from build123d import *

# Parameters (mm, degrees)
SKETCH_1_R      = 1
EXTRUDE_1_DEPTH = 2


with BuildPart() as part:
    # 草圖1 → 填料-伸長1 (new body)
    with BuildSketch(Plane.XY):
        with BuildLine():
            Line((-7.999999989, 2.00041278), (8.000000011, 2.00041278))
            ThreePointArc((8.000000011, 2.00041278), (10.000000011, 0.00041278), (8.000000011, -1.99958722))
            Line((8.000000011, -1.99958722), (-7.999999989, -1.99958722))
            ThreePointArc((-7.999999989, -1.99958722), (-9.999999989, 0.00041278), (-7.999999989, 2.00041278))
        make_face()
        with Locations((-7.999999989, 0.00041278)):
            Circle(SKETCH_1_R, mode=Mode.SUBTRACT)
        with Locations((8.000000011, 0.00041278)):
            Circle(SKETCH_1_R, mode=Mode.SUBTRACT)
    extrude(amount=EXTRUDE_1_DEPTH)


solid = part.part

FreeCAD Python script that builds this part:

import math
import FreeCAD as App
import Part
import Sketcher

doc = App.newDocument("Part")
body = doc.addObject("PartDesign::Body", "Body")

# Sketch on XY plane
sketch1 = doc.addObject("Sketcher::SketchObject", "Sketch")
body.addObject(sketch1)
sketch1.AttachmentSupport = (doc.XY_Plane, [""])
sketch1.MapMode = "FlatFace"
sketch1.addGeometry([
    Part.LineSegment(App.Vector(8, 2, 0), App.Vector(-8, 2, 0)),  # 0
    Part.ArcOfCircle(Part.Circle(App.Vector(-8, 0, 0), App.Vector(0, 0, 1), 2), math.radians(90), math.radians(270)),  # 1
    Part.LineSegment(App.Vector(-8, -2, 0), App.Vector(8, -2, 0)),  # 2
    Part.ArcOfCircle(Part.Circle(App.Vector(8, 0, 0), App.Vector(0, 0, 1), 2), math.radians(-90), math.radians(90)),  # 3
    Part.Circle(App.Vector(8, 0, 0), App.Vector(0, 0, 1), 1),  # 4
    Part.Circle(App.Vector(-8, 0, 0), App.Vector(0, 0, 1), 1),  # 5
], False)
sketch1.addConstraint([
    Sketcher.Constraint("Tangent", 0, 2, 1, 1),
    Sketcher.Constraint("Tangent", 1, 2, 2, 1),
    Sketcher.Constraint("Tangent", 2, 2, 3, 1),
    Sketcher.Constraint("Tangent", 3, 2, 0, 1),
    Sketcher.Constraint("Horizontal", 0),
    Sketcher.Constraint("Horizontal", 2),
    Sketcher.Constraint("Coincident", 4, 3, 3, 3),
    Sketcher.Constraint("Coincident", 5, 3, 1, 3),
    Sketcher.Constraint("Equal", 4, 5),
    Sketcher.Constraint("Diameter", 4, 2.0),
    Sketcher.Constraint("Radius", 1, 2.0),
    Sketcher.Constraint("DistanceX", 0, 2, 0, 1, 16.0),
    Sketcher.Constraint("DistanceX", 1, 3, -1, 1, 8.0),
    Sketcher.Constraint("DistanceY", -1, 1, 1, 3, 0.000413),
])
pad1 = doc.addObject("PartDesign::Pad", "Pad")
body.addObject(pad1)
pad1.Profile = sketch1
pad1.Length = 2

doc.recompute()
